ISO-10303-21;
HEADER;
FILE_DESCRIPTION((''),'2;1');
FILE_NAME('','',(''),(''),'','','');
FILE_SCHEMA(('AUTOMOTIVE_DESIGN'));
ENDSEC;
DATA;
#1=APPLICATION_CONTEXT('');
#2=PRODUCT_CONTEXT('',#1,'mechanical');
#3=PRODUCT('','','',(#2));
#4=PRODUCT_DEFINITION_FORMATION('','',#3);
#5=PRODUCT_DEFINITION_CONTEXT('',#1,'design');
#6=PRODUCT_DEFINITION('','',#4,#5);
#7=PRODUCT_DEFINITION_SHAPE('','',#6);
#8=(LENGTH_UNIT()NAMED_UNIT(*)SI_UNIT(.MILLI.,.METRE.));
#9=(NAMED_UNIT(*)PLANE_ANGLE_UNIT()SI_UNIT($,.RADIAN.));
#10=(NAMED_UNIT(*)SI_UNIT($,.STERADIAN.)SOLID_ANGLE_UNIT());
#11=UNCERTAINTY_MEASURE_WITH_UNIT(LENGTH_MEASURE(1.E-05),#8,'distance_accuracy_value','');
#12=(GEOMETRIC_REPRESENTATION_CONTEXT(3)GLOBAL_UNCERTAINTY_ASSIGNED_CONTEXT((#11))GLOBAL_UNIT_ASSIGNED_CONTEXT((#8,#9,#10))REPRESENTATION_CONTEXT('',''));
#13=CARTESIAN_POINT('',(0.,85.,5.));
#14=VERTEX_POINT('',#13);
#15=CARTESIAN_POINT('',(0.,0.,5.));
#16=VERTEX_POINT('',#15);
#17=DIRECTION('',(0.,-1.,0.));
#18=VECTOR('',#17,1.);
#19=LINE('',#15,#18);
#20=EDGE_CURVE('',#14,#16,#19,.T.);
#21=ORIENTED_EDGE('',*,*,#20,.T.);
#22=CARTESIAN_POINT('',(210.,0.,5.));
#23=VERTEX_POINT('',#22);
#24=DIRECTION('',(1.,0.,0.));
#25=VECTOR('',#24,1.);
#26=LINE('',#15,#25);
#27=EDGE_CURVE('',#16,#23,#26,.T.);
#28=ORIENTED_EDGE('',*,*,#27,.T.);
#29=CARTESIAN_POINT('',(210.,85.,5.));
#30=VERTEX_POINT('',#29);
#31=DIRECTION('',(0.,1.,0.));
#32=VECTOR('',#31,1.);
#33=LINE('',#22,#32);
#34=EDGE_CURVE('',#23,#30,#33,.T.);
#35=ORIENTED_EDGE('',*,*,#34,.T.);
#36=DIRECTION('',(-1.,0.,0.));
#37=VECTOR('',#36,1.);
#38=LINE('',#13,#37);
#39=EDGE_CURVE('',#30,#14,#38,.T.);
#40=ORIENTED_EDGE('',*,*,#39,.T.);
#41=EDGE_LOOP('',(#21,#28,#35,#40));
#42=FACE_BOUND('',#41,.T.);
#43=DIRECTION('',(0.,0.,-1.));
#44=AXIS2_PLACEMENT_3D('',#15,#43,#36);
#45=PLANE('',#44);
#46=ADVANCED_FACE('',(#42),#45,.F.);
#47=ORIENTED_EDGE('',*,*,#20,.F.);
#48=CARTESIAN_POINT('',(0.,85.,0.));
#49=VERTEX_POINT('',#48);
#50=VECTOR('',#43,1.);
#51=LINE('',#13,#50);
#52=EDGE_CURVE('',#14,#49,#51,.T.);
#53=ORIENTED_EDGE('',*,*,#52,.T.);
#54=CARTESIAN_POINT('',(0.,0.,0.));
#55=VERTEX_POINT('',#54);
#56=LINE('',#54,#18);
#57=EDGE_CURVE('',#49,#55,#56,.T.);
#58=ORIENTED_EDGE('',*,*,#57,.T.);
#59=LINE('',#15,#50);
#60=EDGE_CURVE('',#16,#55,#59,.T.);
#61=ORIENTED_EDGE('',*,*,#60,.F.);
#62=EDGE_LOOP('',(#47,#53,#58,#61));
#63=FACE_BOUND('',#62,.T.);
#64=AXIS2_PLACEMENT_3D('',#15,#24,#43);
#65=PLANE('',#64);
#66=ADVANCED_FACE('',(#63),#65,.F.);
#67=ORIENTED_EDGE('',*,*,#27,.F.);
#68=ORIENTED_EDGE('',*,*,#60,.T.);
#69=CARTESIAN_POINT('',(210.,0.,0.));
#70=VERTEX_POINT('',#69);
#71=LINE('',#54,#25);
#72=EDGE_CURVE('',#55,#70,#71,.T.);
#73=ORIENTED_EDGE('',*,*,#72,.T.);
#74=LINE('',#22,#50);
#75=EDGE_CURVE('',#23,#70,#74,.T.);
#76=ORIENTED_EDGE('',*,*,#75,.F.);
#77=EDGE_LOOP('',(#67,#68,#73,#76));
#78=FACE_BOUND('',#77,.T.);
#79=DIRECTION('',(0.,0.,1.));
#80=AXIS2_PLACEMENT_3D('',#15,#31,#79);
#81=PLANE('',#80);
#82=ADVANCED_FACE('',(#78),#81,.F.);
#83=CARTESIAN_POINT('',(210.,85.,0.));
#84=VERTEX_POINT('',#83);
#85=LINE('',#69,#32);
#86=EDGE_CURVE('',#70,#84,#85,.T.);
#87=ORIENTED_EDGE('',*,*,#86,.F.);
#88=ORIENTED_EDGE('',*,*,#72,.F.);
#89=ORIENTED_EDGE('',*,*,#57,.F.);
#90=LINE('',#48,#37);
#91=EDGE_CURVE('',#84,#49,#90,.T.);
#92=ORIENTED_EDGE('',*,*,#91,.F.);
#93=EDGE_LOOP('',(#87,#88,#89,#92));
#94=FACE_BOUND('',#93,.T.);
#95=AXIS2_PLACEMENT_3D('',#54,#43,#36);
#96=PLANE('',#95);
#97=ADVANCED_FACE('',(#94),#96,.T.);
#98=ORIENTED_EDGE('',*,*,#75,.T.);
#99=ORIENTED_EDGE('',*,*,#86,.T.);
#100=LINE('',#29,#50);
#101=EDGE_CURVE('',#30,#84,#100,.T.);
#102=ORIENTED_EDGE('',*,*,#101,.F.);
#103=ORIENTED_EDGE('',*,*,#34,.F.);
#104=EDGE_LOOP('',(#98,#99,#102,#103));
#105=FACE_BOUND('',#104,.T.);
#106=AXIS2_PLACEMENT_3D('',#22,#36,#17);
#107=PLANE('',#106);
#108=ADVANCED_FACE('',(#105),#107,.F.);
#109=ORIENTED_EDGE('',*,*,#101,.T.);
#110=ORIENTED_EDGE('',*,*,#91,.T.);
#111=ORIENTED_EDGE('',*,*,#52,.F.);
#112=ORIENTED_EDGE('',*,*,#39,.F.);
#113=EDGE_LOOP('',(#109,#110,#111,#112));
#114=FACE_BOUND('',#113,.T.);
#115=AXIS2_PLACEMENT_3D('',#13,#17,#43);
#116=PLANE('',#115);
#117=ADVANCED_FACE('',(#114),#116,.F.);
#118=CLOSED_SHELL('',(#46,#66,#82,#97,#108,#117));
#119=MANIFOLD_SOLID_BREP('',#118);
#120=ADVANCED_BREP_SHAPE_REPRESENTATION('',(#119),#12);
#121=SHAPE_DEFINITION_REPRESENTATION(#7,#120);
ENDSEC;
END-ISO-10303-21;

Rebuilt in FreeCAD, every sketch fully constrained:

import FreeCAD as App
import Part
import Sketcher
from FreeCAD import Vector


def add_polygon(sketch, points):
    """Adds a closed chain of lines whose ends are joined by coincident constraints."""
    first, n = sketch.GeometryCount, len(points)
    for a, b in zip(points, points[1:] + points[:1]):
        sketch.addGeometry(Part.LineSegment(App.Vector(*a, 0), App.Vector(*b, 0)), False)
    for i in range(n):
        sketch.addConstraint(Sketcher.Constraint("Coincident", first + i, 2, first + (i + 1) % n, 1))

doc = App.newDocument("Part")
body = doc.addObject("PartDesign::Body", "Body")

# Sketch on XY plane
sketch1 = body.newObject("Sketcher::SketchObject", "Sketch")
sketch1.AttachmentSupport = (doc.getObject("XY_Plane"), [""])
sketch1.MapMode = "FlatFace"
add_polygon(sketch1, [(0, 85), (0, 0), (210, 0), (210, 85)])  # lines 0-3
sketch1.addConstraint([
    Sketcher.Constraint("Vertical", 0),
    Sketcher.Constraint("Horizontal", 1),
    Sketcher.Constraint("Vertical", 2),
    Sketcher.Constraint("Horizontal", 3),
    Sketcher.Constraint("Coincident", 0, 2, -1, 1),
    Sketcher.Constraint("DistanceX", 1, 1, 1, 2, 210.0),
    Sketcher.Constraint("DistanceY", 0, 2, 0, 1, 85.0),
])
pad1 = body.newObject("PartDesign::Pad", "Pad")
pad1.Profile = sketch1
pad1.Length = 5

doc.recompute()
